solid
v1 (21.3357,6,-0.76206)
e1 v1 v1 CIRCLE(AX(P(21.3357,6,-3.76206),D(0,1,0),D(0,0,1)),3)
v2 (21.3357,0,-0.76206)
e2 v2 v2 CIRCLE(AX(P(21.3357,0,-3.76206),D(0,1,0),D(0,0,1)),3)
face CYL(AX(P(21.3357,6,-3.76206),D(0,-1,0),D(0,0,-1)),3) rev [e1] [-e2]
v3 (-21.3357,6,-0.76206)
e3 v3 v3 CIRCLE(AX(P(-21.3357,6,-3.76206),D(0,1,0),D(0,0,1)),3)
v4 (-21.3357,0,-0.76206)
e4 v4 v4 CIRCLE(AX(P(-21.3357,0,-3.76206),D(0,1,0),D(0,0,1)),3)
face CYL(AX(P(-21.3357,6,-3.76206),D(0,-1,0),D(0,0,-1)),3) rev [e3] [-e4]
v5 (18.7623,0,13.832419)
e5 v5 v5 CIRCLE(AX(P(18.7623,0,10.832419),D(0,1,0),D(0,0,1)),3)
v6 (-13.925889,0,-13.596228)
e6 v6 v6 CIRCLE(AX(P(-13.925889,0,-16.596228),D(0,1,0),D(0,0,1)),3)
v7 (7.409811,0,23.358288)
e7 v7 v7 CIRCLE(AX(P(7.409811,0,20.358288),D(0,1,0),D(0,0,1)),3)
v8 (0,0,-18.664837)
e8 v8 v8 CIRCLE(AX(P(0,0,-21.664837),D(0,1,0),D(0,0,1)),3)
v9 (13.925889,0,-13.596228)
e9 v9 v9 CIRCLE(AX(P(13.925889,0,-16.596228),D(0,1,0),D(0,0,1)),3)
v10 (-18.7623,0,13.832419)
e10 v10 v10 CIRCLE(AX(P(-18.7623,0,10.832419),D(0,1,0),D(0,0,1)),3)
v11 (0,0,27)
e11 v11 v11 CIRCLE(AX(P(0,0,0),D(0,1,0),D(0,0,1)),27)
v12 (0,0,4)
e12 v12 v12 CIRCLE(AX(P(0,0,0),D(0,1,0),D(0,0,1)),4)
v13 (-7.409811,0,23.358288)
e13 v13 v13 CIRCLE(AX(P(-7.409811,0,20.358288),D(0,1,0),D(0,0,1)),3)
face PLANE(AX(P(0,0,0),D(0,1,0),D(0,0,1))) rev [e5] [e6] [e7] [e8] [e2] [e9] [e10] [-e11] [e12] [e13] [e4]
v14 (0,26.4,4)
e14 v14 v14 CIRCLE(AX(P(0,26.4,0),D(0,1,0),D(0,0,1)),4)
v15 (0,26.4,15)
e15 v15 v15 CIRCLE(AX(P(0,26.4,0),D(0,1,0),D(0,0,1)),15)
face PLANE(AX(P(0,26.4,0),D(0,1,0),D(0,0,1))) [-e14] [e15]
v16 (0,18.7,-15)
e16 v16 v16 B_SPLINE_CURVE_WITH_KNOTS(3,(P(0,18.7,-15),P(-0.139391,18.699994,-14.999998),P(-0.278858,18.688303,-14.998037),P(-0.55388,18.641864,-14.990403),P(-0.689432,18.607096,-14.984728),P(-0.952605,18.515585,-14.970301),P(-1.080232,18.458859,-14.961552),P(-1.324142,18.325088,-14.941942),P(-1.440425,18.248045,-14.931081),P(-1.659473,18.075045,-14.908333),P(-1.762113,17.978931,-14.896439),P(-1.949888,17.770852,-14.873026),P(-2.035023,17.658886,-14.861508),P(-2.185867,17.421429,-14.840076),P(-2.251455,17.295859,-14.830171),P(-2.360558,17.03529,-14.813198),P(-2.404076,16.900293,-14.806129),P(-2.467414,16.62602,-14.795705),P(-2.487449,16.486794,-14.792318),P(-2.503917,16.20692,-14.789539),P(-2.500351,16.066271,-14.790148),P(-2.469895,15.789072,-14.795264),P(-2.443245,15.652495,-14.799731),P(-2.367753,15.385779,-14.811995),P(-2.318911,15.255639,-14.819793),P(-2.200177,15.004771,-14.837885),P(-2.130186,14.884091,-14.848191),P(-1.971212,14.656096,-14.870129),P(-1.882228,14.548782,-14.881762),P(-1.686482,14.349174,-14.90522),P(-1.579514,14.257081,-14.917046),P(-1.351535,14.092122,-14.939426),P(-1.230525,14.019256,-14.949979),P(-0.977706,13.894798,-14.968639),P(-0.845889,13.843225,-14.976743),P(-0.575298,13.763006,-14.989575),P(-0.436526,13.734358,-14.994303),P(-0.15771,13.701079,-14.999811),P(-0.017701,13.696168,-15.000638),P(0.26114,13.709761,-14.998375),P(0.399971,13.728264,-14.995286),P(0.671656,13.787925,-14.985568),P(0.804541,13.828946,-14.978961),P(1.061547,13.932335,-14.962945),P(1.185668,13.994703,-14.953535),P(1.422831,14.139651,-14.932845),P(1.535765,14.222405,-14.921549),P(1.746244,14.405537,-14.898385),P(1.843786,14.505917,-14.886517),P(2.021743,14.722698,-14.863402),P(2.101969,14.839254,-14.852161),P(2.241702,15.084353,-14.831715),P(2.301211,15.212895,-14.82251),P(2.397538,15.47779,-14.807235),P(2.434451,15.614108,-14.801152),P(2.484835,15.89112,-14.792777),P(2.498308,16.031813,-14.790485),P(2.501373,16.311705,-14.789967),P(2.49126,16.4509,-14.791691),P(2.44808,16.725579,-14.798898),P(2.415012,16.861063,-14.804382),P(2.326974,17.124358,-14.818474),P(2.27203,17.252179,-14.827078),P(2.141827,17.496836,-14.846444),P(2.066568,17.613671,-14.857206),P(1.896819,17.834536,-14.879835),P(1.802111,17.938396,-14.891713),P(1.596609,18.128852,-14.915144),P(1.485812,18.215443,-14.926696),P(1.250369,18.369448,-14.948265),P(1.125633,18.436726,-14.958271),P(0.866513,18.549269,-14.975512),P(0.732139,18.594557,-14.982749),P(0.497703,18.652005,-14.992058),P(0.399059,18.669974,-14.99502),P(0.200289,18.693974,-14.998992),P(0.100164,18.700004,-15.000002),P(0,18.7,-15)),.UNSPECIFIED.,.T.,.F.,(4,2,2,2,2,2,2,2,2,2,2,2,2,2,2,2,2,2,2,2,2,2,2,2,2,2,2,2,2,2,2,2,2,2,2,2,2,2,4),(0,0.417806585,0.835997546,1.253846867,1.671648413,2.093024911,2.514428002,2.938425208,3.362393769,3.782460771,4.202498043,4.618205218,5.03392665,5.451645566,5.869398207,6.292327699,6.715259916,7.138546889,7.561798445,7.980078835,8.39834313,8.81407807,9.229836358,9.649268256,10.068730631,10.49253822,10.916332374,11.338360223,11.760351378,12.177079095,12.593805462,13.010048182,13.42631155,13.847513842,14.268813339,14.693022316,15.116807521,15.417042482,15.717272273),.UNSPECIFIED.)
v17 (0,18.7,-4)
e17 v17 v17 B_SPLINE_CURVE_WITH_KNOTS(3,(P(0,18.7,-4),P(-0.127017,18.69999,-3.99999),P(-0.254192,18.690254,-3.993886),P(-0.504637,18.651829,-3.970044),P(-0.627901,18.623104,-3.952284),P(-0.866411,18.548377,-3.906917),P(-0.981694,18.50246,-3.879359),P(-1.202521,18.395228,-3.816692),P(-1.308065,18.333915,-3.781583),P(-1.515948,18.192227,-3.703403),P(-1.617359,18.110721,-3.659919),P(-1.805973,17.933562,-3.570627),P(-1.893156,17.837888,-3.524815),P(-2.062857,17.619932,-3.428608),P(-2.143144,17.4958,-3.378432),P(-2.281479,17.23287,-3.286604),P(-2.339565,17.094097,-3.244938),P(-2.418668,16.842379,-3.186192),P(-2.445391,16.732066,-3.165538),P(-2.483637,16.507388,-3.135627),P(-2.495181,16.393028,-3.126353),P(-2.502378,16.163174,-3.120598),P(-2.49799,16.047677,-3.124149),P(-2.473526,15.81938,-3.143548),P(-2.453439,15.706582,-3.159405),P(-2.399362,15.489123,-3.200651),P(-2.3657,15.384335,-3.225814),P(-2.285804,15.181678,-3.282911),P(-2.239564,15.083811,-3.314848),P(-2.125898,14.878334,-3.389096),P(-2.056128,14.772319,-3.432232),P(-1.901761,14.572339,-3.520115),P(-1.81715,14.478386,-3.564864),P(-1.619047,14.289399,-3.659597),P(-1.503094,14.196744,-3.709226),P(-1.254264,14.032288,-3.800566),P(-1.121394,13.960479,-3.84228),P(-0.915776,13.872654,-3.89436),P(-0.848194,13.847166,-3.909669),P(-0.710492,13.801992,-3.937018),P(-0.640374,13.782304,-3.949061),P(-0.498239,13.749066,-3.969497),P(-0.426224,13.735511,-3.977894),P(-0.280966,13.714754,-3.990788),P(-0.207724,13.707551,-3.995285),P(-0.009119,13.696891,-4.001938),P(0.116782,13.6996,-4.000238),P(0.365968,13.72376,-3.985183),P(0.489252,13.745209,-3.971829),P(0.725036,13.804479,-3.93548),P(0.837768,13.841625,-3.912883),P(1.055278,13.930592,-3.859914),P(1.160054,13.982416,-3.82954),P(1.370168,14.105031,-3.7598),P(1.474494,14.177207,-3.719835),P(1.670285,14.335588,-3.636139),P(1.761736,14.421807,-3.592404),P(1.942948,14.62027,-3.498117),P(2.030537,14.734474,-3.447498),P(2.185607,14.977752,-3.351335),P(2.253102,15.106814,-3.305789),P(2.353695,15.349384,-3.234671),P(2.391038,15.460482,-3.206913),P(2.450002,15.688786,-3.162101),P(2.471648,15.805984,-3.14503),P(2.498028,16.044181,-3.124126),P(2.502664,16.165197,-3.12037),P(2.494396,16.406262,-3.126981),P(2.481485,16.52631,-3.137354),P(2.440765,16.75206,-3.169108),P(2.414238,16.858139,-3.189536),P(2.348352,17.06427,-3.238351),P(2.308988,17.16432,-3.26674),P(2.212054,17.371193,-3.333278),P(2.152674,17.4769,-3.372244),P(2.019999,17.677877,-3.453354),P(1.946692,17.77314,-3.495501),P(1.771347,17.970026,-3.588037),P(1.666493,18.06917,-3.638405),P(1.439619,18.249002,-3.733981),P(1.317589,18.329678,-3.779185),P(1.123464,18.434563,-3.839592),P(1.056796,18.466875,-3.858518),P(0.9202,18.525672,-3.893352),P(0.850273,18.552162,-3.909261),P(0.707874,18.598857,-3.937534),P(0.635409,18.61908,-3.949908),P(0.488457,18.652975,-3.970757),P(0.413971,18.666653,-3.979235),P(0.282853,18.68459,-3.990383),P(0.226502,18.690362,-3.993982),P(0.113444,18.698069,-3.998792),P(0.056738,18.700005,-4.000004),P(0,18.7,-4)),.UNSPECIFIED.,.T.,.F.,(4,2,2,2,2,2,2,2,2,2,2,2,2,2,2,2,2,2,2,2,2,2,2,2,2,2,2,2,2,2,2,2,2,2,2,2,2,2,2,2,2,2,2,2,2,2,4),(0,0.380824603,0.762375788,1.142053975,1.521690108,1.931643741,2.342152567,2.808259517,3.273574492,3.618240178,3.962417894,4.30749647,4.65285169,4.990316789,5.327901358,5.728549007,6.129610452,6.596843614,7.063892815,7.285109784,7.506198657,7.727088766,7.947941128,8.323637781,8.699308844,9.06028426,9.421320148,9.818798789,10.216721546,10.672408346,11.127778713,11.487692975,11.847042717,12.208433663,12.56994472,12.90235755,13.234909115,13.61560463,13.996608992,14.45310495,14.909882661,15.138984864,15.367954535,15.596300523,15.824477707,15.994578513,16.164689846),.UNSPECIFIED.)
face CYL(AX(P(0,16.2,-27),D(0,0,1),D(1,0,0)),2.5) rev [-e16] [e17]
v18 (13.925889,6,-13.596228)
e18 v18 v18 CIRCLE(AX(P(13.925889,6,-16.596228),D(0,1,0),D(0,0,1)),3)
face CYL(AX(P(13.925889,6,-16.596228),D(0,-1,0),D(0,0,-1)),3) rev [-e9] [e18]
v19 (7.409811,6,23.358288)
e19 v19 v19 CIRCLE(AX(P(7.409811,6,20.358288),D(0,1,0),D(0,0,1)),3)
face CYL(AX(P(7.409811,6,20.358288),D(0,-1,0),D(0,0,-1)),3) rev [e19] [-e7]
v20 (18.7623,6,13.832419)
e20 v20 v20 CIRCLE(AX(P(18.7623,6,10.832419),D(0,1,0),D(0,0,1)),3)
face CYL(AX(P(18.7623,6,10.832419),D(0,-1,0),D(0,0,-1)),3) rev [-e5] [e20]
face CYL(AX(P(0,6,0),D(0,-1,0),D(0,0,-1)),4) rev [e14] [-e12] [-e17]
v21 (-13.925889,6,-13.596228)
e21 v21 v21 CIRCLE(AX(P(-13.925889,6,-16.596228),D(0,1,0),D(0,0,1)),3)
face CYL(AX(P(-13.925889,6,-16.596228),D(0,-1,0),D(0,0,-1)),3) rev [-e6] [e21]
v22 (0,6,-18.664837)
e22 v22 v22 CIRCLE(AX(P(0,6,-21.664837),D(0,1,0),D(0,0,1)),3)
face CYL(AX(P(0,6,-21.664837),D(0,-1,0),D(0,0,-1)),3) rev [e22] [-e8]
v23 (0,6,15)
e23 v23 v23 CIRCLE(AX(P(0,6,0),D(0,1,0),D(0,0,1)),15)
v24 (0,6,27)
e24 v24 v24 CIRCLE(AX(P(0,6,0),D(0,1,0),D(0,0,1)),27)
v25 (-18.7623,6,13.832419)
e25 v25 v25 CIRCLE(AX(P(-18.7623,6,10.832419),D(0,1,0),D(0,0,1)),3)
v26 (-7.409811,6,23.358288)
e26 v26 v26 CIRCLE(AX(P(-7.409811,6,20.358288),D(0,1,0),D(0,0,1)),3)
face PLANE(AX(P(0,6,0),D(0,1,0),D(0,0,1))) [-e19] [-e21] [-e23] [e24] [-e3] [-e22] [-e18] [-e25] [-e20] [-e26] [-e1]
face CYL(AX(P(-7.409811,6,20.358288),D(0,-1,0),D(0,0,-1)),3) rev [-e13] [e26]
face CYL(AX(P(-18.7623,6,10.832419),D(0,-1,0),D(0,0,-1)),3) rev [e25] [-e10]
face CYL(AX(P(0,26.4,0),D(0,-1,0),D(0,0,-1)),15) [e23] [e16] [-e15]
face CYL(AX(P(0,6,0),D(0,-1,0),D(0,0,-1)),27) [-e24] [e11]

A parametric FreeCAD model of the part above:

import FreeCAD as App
import Part
import Sketcher
from FreeCAD import Vector

doc = App.newDocument("Part")
body = doc.addObject("PartDesign::Body", "Body")

# Sketch on XZ plane
sketch1 = body.newObject("Sketcher::SketchObject", "Sketch")
sketch1.AttachmentSupport = (doc.getObject("XZ_Plane"), [""])
sketch1.MapMode = "FlatFace"
sketch1.addGeometry(Part.Circle(Vector(0, 0, 0), Vector(0, 0, 1), 27), False)
sketch1.addGeometry(Part.Circle(Vector(-13.9, -16.6, 0), Vector(0, 0, 1), 3), False)
sketch1.addGeometry(Part.Circle(Vector(-21.3, -3.8, 0), Vector(0, 0, 1), 3), False)
sketch1.addGeometry(Part.Circle(Vector(0, -21.7, 0), Vector(0, 0, 1), 3), False)
sketch1.addGeometry(Part.Circle(Vector(-18.8, 10.8, 0), Vector(0, 0, 1), 3), False)
sketch1.addGeometry(Part.Circle(Vector(-7.4, 20.4, 0), Vector(0, 0, 1), 3), False)
sketch1.addGeometry(Part.Circle(Vector(13.9, -16.6, 0), Vector(0, 0, 1), 3), False)
sketch1.addGeometry(Part.Circle(Vector(21.3, -3.8, 0), Vector(0, 0, 1), 3), False)
sketch1.addGeometry(Part.Circle(Vector(0, 0, 0), Vector(0, 0, 1), 4), False)
sketch1.addGeometry(Part.Circle(Vector(7.4, 20.4, 0), Vector(0, 0, 1), 3), False)
sketch1.addGeometry(Part.Circle(Vector(18.8, 10.8, 0), Vector(0, 0, 1), 3), False)
sketch1.addConstraint(Sketcher.Constraint("Coincident", 0, 3, -1, 1))
sketch1.addConstraint(Sketcher.Constraint("Coincident", 8, 3, -1, 1))
sketch1.addConstraint(Sketcher.Constraint("Equal", 1, 2))
sketch1.addConstraint(Sketcher.Constraint("Equal", 2, 3))
sketch1.addConstraint(Sketcher.Constraint("Equal", 3, 4))
sketch1.addConstraint(Sketcher.Constraint("Equal", 4, 5))
sketch1.addConstraint(Sketcher.Constraint("Equal", 5, 6))
sketch1.addConstraint(Sketcher.Constraint("Equal", 6, 7))
sketch1.addConstraint(Sketcher.Constraint("Equal", 7, 9))
sketch1.addConstraint(Sketcher.Constraint("Equal", 9, 10))
sketch1.addConstraint(Sketcher.Constraint("Symmetric", 1, 3, 6, 3, -2))
sketch1.addConstraint(Sketcher.Constraint("Symmetric", 2, 3, 7, 3, -2))
sketch1.addConstraint(Sketcher.Constraint("Symmetric", 5, 3, 9, 3, -2))
sketch1.addConstraint(Sketcher.Constraint("Symmetric", 4, 3, 10, 3, -2))
sketch1.addConstraint(Sketcher.Constraint("PointOnObject", 3, 3, -2))
sketch1.addConstraint(Sketcher.Constraint("Diameter", 0, 54.0))
sketch1.addConstraint(Sketcher.Constraint("Diameter", 1, 6.0))
sketch1.addConstraint(Sketcher.Constraint("Diameter", 8, 8.0))
sketch1.addConstraint(Sketcher.Constraint("DistanceX", 2, 3, -1, 1, 21.3357))
sketch1.addConstraint(Sketcher.Constraint("DistanceX", 4, 3, -1, 1, 18.7623))
sketch1.addConstraint(Sketcher.Constraint("DistanceX", 5, 3, 6, 3, 21.3357))
sketch1.addConstraint(Sketcher.Constraint("DistanceX", 1, 3, -1, 1, 13.925889))
sketch1.addConstraint(Sketcher.Constraint("DistanceY", 1, 3, -1, 1, 16.596228))
sketch1.addConstraint(Sketcher.Constraint("DistanceY", 2, 3, -1, 1, 3.76206))
sketch1.addConstraint(Sketcher.Constraint("DistanceY", -1, 1, 4, 3, 10.832419))
sketch1.addConstraint(Sketcher.Constraint("DistanceY", 3, 3, 1, 3, 5.068609))
sketch1.addConstraint(Sketcher.Constraint("DistanceY", 4, 3, 5, 3, 9.525869))
pad1 = body.newObject("PartDesign::Pad", "Pad")
pad1.Profile = sketch1
pad1.Length = 6
pad1.Reversed = True

# Sketch on XZ plane
sketch2 = body.newObject("Sketcher::SketchObject", "Sketch001")
sketch2.AttachmentSupport = (doc.getObject("XZ_Plane"), [""])
sketch2.MapMode = "FlatFace"
sketch2.AttachmentOffset = App.Placement(Vector(0, 0, -6), App.Rotation())
sketch2.addGeometry(Part.Circle(Vector(0, 0, 0), Vector(0, 0, 1), 15), False)
sketch2.addGeometry(Part.Circle(Vector(0, 0, 0), Vector(0, 0, 1), 4), False)
sketch2.addConstraint(Sketcher.Constraint("Coincident", 0, 3, -1, 1))
sketch2.addConstraint(Sketcher.Constraint("Coincident", 1, 3, -1, 1))
sketch2.addConstraint(Sketcher.Constraint("Diameter", 0, 30.0))
sketch2.addConstraint(Sketcher.Constraint("Diameter", 1, 8.0))
pad2 = body.newObject("PartDesign::Pad", "Pad001")
pad2.Profile = sketch2
pad2.Length = 20.4
pad2.Reversed = True

# Sketch on XY plane
sketch3 = body.newObject("Sketcher::SketchObject", "Sketch002")
sketch3.AttachmentSupport = (doc.getObject("XY_Plane"), [""])
sketch3.MapMode = "FlatFace"
sketch3.addGeometry(Part.Circle(Vector(0, 16.2, 0), Vector(0, 0, 1), 2.5), False)
sketch3.addConstraint(Sketcher.Constraint("PointOnObject", 0, 3, -2))
sketch3.addConstraint(Sketcher.Constraint("Diameter", 0, 5.0))
sketch3.addConstraint(Sketcher.Constraint("DistanceY", -1, 1, 0, 3, 16.2))
pocket1 = body.newObject("PartDesign::Pocket", "Pocket")
pocket1.Profile = sketch3
pocket1.Type = "ThroughAll"

doc.recompute()
